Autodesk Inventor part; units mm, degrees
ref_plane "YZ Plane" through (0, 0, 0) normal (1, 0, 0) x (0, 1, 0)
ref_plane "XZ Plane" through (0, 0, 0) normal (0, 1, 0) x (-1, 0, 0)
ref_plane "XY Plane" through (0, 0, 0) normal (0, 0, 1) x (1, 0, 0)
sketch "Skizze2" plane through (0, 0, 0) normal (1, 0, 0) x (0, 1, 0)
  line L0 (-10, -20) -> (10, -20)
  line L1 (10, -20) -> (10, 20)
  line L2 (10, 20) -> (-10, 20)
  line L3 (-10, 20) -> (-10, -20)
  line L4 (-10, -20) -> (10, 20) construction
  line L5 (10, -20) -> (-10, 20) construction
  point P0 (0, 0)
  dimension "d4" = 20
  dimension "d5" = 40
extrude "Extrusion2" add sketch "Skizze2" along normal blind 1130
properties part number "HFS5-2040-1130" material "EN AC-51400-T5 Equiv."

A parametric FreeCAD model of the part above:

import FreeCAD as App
import Part
import Sketcher
from FreeCAD import Vector
Q = App.Units.Quantity

doc = App.newDocument("Part")
body = doc.addObject("PartDesign::Body", "Body")

# Sketch on YZ plane
sketch1 = doc.addObject("Sketcher::SketchObject", "Sketch")
body.addObject(sketch1)
sketch1.AttachmentSupport = (doc.YZ_Plane, [""])
sketch1.MapMode = "FlatFace"
sketch1.addGeometry(Part.LineSegment(Vector(-10, 20, 0), Vector(-10, -20, 0)), False)
sketch1.addGeometry(Part.LineSegment(Vector(-10, -20, 0), Vector(10, -20, 0)), False)
sketch1.addGeometry(Part.LineSegment(Vector(10, -20, 0), Vector(10, 20, 0)), False)
sketch1.addGeometry(Part.LineSegment(Vector(10, 20, 0), Vector(-10, 20, 0)), False)
sketch1.addConstraint(Sketcher.Constraint("Coincident", 0, 2, 1, 1))
sketch1.addConstraint(Sketcher.Constraint("Coincident", 1, 2, 2, 1))
sketch1.addConstraint(Sketcher.Constraint("Coincident", 2, 2, 3, 1))
sketch1.addConstraint(Sketcher.Constraint("Coincident", 3, 2, 0, 1))
sketch1.addConstraint(Sketcher.Constraint("Vertical", 0))
sketch1.addConstraint(Sketcher.Constraint("Horizontal", 1))
sketch1.addConstraint(Sketcher.Constraint("Vertical", 2))
sketch1.addConstraint(Sketcher.Constraint("Horizontal", 3))
sketch1.addConstraint(Sketcher.Constraint("Symmetric", 0, 2, 2, 2, -1, 1))
sketch1.addConstraint(Sketcher.Constraint("DistanceX", 1, 1, 1, 2, Q("20 mm")))
sketch1.addConstraint(Sketcher.Constraint("DistanceY", 0, 2, 0, 1, Q("40 mm")))
pad1 = doc.addObject("PartDesign::Pad", "Pad")
body.addObject(pad1)
pad1.Profile = sketch1
pad1.Length = 1130

doc.recompute()
